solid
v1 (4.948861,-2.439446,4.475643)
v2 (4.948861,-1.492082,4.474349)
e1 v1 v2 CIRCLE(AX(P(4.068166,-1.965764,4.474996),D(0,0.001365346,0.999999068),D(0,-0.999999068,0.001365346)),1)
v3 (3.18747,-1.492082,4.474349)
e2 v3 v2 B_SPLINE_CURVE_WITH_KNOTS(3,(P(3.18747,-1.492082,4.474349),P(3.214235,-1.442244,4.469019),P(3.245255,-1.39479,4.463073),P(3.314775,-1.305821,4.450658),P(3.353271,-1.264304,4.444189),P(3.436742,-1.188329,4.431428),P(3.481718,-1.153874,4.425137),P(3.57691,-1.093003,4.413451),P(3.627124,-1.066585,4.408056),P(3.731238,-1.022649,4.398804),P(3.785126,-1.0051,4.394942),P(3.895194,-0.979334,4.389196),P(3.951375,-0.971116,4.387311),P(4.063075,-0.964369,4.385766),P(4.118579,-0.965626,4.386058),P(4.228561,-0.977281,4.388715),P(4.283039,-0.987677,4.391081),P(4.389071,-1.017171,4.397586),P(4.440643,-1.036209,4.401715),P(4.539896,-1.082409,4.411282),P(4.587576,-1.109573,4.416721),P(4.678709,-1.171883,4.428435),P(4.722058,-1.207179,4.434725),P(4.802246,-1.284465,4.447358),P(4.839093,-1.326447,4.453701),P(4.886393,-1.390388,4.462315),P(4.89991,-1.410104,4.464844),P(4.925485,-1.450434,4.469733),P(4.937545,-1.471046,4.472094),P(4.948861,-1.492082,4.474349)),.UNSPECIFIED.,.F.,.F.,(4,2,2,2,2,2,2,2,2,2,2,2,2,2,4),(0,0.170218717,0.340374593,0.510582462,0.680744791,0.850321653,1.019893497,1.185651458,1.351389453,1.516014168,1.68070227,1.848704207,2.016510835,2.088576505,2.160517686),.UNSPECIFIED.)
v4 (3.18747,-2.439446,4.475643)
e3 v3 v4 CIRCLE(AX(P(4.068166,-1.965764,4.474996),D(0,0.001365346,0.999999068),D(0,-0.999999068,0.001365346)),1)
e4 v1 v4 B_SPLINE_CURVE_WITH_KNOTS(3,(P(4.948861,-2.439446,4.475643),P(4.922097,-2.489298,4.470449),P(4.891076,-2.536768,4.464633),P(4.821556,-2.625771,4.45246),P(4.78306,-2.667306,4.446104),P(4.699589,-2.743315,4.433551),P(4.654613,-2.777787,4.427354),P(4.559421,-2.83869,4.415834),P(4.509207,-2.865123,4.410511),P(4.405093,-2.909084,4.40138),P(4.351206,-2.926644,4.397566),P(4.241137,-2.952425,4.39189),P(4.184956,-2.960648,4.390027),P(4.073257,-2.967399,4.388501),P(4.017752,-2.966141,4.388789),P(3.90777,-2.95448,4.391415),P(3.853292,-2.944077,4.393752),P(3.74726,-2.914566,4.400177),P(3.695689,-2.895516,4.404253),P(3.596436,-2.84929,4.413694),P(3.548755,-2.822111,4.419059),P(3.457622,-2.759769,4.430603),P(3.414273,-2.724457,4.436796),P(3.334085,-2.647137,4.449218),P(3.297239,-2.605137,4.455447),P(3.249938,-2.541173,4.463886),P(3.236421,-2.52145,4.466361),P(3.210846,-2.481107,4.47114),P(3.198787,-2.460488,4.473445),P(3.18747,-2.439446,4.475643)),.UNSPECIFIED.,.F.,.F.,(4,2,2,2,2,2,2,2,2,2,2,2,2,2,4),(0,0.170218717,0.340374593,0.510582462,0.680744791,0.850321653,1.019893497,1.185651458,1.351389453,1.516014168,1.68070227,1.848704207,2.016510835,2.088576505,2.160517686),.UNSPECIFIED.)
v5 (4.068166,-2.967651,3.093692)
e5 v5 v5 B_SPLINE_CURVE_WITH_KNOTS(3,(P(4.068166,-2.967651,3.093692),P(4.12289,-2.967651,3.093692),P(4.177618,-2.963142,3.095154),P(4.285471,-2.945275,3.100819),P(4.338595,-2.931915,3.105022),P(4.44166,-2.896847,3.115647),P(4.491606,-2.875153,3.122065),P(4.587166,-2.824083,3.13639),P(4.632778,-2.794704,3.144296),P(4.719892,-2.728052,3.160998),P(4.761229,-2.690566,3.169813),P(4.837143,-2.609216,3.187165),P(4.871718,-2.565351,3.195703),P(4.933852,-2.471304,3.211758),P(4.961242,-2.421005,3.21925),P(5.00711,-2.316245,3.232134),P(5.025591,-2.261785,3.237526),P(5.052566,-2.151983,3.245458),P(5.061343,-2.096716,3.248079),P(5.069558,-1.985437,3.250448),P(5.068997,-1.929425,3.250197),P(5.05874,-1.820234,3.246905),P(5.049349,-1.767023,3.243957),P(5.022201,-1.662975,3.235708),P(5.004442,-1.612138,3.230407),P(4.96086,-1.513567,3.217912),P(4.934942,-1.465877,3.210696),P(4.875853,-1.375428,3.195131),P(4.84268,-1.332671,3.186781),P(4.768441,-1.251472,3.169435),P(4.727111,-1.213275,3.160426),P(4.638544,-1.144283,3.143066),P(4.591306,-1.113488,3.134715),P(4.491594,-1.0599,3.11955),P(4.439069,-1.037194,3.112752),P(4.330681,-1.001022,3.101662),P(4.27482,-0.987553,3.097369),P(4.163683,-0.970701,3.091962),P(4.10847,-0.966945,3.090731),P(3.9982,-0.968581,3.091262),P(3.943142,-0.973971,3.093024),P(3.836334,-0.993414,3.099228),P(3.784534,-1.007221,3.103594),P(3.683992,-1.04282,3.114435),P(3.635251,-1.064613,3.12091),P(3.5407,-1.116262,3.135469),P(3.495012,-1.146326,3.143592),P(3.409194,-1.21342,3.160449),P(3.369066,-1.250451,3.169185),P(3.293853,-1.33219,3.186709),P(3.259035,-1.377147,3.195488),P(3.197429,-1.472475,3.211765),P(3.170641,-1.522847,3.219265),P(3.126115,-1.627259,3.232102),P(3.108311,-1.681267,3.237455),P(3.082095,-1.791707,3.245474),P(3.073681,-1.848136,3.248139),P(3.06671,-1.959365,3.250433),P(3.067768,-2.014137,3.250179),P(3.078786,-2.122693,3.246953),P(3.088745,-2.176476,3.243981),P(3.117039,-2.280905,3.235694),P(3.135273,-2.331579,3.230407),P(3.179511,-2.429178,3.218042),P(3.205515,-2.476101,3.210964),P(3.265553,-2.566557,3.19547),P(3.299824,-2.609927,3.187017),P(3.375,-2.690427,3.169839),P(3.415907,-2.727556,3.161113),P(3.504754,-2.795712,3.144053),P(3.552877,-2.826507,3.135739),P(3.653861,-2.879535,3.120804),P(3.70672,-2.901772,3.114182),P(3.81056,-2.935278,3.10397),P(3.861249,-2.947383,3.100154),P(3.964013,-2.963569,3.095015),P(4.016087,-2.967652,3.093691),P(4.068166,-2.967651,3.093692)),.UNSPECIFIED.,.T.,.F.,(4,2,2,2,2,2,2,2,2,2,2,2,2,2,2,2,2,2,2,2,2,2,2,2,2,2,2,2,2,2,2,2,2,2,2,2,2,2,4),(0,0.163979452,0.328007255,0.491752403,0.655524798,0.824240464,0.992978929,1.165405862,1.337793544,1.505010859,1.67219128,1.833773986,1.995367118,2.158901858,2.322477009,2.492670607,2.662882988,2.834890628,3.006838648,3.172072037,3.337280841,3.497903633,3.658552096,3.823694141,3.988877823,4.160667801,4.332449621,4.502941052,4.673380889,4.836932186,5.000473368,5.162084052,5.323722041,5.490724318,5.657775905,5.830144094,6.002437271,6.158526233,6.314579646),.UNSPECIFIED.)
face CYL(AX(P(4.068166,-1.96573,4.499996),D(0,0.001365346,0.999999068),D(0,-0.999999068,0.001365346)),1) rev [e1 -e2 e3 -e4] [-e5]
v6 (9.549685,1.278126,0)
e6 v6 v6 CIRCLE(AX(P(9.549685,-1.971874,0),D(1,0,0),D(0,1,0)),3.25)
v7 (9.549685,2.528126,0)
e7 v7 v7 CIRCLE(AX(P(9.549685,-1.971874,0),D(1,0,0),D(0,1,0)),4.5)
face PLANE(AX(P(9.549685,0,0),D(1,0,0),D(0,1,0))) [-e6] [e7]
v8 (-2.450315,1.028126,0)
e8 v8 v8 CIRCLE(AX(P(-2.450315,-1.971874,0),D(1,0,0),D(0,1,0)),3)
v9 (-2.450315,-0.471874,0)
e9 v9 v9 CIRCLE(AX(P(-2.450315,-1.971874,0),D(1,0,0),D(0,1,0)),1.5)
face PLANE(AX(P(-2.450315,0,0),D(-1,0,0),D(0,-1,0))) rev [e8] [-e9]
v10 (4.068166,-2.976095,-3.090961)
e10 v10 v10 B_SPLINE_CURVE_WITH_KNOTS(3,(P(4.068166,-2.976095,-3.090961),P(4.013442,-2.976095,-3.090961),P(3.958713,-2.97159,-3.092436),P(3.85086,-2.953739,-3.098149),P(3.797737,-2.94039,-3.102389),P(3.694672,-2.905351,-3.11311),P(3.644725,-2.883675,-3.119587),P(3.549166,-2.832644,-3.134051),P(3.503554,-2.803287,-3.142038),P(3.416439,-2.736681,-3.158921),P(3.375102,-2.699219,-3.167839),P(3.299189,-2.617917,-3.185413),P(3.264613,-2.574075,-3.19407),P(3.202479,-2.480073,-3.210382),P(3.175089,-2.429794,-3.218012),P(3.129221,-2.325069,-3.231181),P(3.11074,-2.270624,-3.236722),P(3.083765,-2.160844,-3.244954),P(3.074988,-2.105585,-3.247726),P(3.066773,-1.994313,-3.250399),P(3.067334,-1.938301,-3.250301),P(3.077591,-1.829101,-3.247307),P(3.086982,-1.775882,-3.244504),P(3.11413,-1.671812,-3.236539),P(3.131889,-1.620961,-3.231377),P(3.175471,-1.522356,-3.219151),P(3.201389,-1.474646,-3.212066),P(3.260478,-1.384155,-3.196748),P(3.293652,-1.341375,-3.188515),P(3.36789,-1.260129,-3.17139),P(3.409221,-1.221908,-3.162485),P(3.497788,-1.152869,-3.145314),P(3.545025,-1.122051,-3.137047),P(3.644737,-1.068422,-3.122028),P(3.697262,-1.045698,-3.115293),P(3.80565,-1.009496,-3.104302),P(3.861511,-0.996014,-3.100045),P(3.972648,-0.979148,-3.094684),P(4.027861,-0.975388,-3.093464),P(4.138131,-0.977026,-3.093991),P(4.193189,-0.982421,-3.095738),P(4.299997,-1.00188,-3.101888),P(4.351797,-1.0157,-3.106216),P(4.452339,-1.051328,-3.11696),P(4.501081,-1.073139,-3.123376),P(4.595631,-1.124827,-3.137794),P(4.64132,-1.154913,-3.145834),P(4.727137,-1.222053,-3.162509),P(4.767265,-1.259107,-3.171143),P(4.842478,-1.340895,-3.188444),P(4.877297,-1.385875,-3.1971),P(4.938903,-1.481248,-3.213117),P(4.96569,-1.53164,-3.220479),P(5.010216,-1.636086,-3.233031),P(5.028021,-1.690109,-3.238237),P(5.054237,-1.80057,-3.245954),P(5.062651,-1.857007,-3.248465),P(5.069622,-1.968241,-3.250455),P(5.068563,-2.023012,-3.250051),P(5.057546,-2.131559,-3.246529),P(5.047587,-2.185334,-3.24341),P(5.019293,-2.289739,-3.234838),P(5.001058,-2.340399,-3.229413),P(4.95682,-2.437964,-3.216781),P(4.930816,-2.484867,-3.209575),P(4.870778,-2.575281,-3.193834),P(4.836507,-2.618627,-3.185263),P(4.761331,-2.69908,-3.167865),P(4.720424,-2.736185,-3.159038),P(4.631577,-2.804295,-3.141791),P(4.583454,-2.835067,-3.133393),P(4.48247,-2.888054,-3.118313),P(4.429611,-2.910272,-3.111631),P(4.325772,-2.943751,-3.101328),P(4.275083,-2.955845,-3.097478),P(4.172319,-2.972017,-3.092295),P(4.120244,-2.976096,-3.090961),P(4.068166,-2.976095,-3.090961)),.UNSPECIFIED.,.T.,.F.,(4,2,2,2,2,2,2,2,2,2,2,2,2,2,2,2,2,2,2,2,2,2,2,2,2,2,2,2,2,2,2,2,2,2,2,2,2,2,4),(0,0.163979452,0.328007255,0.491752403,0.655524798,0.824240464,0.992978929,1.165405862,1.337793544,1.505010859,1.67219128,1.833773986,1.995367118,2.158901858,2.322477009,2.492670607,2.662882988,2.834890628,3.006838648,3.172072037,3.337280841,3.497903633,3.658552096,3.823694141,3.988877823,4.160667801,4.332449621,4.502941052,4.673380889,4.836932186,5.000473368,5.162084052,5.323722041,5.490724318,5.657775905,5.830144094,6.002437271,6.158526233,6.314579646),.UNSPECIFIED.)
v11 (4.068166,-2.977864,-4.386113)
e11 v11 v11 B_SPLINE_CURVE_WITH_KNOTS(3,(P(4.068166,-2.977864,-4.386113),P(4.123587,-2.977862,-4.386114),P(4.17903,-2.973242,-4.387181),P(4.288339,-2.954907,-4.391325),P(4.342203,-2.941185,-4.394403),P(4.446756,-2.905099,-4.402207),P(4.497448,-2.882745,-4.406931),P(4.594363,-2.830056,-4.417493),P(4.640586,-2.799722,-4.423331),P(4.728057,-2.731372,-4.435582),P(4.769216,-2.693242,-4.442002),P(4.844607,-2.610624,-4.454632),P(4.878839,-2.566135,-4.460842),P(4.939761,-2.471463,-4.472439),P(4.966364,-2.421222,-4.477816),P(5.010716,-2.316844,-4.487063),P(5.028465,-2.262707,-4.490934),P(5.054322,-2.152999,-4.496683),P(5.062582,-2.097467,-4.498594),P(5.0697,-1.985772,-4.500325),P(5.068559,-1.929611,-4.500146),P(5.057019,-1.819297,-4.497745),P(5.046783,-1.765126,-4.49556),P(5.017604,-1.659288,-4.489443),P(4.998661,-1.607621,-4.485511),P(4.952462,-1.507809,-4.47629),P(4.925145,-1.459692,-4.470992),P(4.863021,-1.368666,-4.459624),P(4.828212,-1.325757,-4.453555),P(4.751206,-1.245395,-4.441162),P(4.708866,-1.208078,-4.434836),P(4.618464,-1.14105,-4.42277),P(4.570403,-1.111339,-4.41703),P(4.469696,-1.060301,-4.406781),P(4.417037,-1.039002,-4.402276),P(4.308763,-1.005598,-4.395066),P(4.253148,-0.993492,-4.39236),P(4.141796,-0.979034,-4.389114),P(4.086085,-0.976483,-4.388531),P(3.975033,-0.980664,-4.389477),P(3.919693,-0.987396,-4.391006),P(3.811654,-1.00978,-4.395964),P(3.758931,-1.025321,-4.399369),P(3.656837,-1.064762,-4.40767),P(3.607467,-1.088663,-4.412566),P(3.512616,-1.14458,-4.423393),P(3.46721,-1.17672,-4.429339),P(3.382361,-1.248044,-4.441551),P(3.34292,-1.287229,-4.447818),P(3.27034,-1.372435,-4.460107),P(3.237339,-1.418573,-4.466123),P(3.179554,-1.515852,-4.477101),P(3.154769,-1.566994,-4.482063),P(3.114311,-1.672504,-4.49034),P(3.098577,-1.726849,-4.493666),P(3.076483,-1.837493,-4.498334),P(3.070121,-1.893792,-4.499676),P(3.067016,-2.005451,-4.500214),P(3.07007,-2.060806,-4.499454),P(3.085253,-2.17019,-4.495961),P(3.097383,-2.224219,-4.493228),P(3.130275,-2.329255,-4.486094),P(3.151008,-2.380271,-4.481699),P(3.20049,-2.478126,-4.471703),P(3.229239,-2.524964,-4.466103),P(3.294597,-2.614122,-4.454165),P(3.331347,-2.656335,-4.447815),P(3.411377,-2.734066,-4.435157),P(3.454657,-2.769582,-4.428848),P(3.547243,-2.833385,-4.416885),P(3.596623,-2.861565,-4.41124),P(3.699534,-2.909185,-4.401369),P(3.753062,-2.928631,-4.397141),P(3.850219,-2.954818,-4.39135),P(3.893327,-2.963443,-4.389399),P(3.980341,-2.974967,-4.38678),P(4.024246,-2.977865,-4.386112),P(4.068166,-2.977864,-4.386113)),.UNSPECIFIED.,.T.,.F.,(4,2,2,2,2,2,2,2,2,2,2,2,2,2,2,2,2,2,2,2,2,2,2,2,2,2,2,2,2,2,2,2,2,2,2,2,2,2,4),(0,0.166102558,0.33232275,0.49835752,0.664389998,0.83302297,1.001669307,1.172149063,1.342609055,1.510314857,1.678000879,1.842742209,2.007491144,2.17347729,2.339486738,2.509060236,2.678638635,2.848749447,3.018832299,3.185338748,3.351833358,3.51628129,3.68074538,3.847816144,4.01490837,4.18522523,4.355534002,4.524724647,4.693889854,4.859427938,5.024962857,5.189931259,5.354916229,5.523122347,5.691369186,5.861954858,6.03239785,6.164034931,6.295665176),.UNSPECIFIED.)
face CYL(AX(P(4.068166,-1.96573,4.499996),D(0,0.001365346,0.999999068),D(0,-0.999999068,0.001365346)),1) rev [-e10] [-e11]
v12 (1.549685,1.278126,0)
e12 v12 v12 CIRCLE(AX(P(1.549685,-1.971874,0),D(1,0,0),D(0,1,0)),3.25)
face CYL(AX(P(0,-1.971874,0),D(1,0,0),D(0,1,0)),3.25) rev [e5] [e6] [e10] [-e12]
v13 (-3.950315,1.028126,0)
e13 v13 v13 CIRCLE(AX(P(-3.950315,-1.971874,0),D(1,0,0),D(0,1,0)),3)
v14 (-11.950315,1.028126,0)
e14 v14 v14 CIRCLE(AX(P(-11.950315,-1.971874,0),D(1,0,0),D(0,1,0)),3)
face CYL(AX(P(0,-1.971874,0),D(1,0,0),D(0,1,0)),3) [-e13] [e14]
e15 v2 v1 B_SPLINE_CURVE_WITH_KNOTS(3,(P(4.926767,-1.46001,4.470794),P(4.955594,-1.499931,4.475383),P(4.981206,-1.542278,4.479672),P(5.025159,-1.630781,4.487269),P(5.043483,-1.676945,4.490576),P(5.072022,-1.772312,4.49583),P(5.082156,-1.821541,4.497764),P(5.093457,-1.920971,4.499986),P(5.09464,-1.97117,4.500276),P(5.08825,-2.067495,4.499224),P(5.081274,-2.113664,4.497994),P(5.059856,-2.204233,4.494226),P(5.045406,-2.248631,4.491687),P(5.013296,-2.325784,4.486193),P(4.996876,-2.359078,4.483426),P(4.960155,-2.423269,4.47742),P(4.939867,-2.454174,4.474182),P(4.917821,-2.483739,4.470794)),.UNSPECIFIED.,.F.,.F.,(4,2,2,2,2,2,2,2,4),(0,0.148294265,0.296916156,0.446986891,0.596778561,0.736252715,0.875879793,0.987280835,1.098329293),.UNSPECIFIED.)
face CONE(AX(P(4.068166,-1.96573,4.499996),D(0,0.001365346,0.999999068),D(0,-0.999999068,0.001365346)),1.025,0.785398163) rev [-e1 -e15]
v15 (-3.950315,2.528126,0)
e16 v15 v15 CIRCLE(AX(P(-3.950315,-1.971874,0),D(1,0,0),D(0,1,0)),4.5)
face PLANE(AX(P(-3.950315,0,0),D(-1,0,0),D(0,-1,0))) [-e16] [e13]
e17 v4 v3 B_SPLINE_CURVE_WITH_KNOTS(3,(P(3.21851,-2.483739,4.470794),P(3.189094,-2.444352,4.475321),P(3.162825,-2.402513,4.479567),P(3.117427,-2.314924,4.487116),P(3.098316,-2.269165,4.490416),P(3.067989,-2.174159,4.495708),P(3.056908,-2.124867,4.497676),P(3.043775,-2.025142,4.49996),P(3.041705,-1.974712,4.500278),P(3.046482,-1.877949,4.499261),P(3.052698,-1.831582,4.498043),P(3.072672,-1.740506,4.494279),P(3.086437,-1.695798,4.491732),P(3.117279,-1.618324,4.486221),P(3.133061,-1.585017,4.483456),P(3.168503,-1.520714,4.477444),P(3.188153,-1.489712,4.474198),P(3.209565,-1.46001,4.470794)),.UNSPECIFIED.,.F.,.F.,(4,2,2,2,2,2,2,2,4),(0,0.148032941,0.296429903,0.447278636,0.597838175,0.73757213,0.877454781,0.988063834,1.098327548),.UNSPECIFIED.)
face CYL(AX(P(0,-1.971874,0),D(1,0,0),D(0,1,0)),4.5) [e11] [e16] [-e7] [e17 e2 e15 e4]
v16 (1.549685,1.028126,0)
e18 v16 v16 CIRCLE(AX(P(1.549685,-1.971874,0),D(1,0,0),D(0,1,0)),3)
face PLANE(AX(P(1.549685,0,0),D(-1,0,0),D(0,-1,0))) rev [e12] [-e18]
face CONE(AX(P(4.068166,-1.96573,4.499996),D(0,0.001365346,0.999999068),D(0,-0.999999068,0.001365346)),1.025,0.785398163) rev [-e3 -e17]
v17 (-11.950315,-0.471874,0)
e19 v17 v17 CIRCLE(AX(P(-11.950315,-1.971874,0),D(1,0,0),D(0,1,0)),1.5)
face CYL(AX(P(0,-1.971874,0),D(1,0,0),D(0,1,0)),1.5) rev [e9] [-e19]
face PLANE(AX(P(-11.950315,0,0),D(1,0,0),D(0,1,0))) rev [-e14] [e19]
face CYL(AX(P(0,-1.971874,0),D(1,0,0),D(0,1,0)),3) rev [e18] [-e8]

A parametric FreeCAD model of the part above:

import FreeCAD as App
import Part
import Sketcher
Q = App.Units.Quantity


def add_polygon(sketch, points):
    """Adds a closed chain of lines whose ends are joined by coincident constraints."""
    first, n = sketch.GeometryCount, len(points)
    for a, b in zip(points, points[1:] + points[:1]):
        sketch.addGeometry(Part.LineSegment(App.Vector(*a, 0), App.Vector(*b, 0)), False)
    for i in range(n):
        sketch.addConstraint(Sketcher.Constraint("Coincident", first + i, 2, first + (i + 1) % n, 1))

doc = App.newDocument("Part")
body = doc.addObject("PartDesign::Body", "Body")

# Sketch on XY plane
sketch1 = body.newObject("Sketcher::SketchObject", "Sketch")
sketch1.AttachmentSupport = (doc.getObject("XY_Plane"), [""])
sketch1.MapMode = "FlatFace"
add_polygon(sketch1, [(9.55, 1.28), (9.55, 2.53), (-3.95, 2.53), (-3.95, 1.03), (-11.95, 1.03), (-11.95, -0.47), (-2.45, -0.47), (-2.45, 1.03), (1.55, 1.03), (1.55, 1.28)])  # lines 0-9
sketch1.addGeometry(Part.LineSegment(App.Vector(9.55, -1.97, 0), App.Vector(-11.95, -1.97, 0)), True)  # axis
sketch1.addConstraint([
    Sketcher.Constraint("Vertical", 0),
    Sketcher.Constraint("Horizontal", 1),
    Sketcher.Constraint("Vertical", 2),
    Sketcher.Constraint("Horizontal", 3),
    Sketcher.Constraint("Vertical", 4),
    Sketcher.Constraint("Horizontal", 5),
    Sketcher.Constraint("Vertical", 6),
    Sketcher.Constraint("Horizontal", 7),
    Sketcher.Constraint("Vertical", 8),
    Sketcher.Constraint("Horizontal", 9),
    Sketcher.Constraint("Horizontal", 10),
    Sketcher.Constraint("Horizontal", 3, 2, 6, 2),
    Sketcher.Constraint("Vertical", 9, 2, 10, 1),
    Sketcher.Constraint("Vertical", 4, 2, 10, 2),
    Sketcher.Constraint("Equal", 3, 9),
    Sketcher.Constraint("Equal", 2, 4),
    Sketcher.Constraint("DistanceX", 3, 2, 3, 1, Q("8 mm")),
    Sketcher.Constraint("DistanceX", 7, 1, 7, 2, Q("4 mm")),
    Sketcher.Constraint("DistanceX", 1, 2, 1, 1, Q("13.5 mm")),
    Sketcher.Constraint("DistanceY", 2, 2, 2, 1, Q("1.5 mm")),
    Sketcher.Constraint("DistanceY", 10, 1, 7, 2, Q("3 mm")),
    Sketcher.Constraint("DistanceY", 0, 1, 0, 2, Q("1.25 mm")),
    Sketcher.Constraint("DistanceX", -1, 1, 0, 2, Q("9.549685 mm")),
    Sketcher.Constraint("DistanceY", -1, 1, 0, 2, Q("2.528126 mm")),
])
revolution = body.newObject("PartDesign::Revolution", "Revolution")
revolution.Profile = sketch1
revolution.ReferenceAxis = (sketch1, ["Axis0"])
revolution.Angle = 360

# Sketch on an angled plane
sketch2 = body.newObject("Sketcher::SketchObject", "Sketch001")
sketch2.Placement = App.Placement(App.Vector(0, 0.00614, 4.497304), App.Rotation(App.Vector(0, 0.999999068, -0.001365346), App.Vector(-1, 0, 0), App.Vector(0, 0.001365346, 0.999999068), "ZXY"))
sketch2.addGeometry(Part.Circle(App.Vector(-2, -4.1, 0), App.Vector(0, 0, 1), 1), False)
sketch2.addConstraint([
    Sketcher.Constraint("Diameter", 0, Q("2 mm")),
    Sketcher.Constraint("DistanceX", 0, 3, -1, 1, Q("1.971872 mm")),
    Sketcher.Constraint("DistanceY", 0, 3, -1, 1, Q("4.068166 mm")),
])
doc.recompute()
hole = body.newObject("PartDesign::Hole", "Hole")
hole.Profile = sketch2
hole.ThreadType = "None"
hole.Diameter = 2
hole.DepthType = "ThroughAll"
hole.HoleCutType = "Countersink"
hole.HoleCutDiameter = 2.05
hole.HoleCutCountersinkAngle = 90

doc.recompute()
